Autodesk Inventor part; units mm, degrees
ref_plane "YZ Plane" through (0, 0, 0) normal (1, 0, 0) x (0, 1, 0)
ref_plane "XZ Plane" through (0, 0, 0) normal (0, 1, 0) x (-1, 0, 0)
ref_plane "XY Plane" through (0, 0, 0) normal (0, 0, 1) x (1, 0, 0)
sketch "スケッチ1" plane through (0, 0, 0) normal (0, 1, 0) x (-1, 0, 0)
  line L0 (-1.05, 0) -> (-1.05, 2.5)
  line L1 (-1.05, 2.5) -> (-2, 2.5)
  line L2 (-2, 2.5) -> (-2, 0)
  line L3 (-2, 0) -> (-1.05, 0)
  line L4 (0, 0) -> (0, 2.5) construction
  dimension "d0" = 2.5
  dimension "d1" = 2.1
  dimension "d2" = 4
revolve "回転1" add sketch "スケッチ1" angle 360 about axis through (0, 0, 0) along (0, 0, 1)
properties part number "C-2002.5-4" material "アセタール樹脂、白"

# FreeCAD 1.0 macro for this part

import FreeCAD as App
import Part
import Sketcher


def add_polygon(sketch, points):
    """Adds a closed chain of lines whose ends are joined by coincident constraints."""
    first, n = sketch.GeometryCount, len(points)
    for a, b in zip(points, points[1:] + points[:1]):
        sketch.addGeometry(Part.LineSegment(App.Vector(*a, 0), App.Vector(*b, 0)), False)
    for i in range(n):
        sketch.addConstraint(Sketcher.Constraint("Coincident", first + i, 2, first + (i + 1) % n, 1))

doc = App.newDocument("Part")
body = doc.addObject("PartDesign::Body", "Body")

# Sketch on XZ plane
sketch1 = doc.addObject("Sketcher::SketchObject", "Sketch")
body.addObject(sketch1)
sketch1.AttachmentSupport = (doc.XZ_Plane, [""])
sketch1.MapMode = "FlatFace"
add_polygon(sketch1, [(2, 0), (1.1, 0), (1.1, 2.5), (2, 2.5)])  # lines 0-3
sketch1.addConstraint([
    Sketcher.Constraint("Horizontal", 0),
    Sketcher.Constraint("Vertical", 1),
    Sketcher.Constraint("Horizontal", 2),
    Sketcher.Constraint("Vertical", 3),
    Sketcher.Constraint("PointOnObject", 0, 2, -1),
    Sketcher.Constraint("DistanceY", 1, 1, 1, 2, 2.5),
    Sketcher.Constraint("DistanceX", -1, 1, 2, 2, 2.0),
    Sketcher.Constraint("DistanceX", 0, 2, 0, 1, 0.95),
])
revolution = doc.addObject("PartDesign::Revolution", "Revolution")
body.addObject(revolution)
revolution.Profile = sketch1
revolution.ReferenceAxis = (sketch1, ["V_Axis"])
revolution.Angle = 360

doc.recompute()
